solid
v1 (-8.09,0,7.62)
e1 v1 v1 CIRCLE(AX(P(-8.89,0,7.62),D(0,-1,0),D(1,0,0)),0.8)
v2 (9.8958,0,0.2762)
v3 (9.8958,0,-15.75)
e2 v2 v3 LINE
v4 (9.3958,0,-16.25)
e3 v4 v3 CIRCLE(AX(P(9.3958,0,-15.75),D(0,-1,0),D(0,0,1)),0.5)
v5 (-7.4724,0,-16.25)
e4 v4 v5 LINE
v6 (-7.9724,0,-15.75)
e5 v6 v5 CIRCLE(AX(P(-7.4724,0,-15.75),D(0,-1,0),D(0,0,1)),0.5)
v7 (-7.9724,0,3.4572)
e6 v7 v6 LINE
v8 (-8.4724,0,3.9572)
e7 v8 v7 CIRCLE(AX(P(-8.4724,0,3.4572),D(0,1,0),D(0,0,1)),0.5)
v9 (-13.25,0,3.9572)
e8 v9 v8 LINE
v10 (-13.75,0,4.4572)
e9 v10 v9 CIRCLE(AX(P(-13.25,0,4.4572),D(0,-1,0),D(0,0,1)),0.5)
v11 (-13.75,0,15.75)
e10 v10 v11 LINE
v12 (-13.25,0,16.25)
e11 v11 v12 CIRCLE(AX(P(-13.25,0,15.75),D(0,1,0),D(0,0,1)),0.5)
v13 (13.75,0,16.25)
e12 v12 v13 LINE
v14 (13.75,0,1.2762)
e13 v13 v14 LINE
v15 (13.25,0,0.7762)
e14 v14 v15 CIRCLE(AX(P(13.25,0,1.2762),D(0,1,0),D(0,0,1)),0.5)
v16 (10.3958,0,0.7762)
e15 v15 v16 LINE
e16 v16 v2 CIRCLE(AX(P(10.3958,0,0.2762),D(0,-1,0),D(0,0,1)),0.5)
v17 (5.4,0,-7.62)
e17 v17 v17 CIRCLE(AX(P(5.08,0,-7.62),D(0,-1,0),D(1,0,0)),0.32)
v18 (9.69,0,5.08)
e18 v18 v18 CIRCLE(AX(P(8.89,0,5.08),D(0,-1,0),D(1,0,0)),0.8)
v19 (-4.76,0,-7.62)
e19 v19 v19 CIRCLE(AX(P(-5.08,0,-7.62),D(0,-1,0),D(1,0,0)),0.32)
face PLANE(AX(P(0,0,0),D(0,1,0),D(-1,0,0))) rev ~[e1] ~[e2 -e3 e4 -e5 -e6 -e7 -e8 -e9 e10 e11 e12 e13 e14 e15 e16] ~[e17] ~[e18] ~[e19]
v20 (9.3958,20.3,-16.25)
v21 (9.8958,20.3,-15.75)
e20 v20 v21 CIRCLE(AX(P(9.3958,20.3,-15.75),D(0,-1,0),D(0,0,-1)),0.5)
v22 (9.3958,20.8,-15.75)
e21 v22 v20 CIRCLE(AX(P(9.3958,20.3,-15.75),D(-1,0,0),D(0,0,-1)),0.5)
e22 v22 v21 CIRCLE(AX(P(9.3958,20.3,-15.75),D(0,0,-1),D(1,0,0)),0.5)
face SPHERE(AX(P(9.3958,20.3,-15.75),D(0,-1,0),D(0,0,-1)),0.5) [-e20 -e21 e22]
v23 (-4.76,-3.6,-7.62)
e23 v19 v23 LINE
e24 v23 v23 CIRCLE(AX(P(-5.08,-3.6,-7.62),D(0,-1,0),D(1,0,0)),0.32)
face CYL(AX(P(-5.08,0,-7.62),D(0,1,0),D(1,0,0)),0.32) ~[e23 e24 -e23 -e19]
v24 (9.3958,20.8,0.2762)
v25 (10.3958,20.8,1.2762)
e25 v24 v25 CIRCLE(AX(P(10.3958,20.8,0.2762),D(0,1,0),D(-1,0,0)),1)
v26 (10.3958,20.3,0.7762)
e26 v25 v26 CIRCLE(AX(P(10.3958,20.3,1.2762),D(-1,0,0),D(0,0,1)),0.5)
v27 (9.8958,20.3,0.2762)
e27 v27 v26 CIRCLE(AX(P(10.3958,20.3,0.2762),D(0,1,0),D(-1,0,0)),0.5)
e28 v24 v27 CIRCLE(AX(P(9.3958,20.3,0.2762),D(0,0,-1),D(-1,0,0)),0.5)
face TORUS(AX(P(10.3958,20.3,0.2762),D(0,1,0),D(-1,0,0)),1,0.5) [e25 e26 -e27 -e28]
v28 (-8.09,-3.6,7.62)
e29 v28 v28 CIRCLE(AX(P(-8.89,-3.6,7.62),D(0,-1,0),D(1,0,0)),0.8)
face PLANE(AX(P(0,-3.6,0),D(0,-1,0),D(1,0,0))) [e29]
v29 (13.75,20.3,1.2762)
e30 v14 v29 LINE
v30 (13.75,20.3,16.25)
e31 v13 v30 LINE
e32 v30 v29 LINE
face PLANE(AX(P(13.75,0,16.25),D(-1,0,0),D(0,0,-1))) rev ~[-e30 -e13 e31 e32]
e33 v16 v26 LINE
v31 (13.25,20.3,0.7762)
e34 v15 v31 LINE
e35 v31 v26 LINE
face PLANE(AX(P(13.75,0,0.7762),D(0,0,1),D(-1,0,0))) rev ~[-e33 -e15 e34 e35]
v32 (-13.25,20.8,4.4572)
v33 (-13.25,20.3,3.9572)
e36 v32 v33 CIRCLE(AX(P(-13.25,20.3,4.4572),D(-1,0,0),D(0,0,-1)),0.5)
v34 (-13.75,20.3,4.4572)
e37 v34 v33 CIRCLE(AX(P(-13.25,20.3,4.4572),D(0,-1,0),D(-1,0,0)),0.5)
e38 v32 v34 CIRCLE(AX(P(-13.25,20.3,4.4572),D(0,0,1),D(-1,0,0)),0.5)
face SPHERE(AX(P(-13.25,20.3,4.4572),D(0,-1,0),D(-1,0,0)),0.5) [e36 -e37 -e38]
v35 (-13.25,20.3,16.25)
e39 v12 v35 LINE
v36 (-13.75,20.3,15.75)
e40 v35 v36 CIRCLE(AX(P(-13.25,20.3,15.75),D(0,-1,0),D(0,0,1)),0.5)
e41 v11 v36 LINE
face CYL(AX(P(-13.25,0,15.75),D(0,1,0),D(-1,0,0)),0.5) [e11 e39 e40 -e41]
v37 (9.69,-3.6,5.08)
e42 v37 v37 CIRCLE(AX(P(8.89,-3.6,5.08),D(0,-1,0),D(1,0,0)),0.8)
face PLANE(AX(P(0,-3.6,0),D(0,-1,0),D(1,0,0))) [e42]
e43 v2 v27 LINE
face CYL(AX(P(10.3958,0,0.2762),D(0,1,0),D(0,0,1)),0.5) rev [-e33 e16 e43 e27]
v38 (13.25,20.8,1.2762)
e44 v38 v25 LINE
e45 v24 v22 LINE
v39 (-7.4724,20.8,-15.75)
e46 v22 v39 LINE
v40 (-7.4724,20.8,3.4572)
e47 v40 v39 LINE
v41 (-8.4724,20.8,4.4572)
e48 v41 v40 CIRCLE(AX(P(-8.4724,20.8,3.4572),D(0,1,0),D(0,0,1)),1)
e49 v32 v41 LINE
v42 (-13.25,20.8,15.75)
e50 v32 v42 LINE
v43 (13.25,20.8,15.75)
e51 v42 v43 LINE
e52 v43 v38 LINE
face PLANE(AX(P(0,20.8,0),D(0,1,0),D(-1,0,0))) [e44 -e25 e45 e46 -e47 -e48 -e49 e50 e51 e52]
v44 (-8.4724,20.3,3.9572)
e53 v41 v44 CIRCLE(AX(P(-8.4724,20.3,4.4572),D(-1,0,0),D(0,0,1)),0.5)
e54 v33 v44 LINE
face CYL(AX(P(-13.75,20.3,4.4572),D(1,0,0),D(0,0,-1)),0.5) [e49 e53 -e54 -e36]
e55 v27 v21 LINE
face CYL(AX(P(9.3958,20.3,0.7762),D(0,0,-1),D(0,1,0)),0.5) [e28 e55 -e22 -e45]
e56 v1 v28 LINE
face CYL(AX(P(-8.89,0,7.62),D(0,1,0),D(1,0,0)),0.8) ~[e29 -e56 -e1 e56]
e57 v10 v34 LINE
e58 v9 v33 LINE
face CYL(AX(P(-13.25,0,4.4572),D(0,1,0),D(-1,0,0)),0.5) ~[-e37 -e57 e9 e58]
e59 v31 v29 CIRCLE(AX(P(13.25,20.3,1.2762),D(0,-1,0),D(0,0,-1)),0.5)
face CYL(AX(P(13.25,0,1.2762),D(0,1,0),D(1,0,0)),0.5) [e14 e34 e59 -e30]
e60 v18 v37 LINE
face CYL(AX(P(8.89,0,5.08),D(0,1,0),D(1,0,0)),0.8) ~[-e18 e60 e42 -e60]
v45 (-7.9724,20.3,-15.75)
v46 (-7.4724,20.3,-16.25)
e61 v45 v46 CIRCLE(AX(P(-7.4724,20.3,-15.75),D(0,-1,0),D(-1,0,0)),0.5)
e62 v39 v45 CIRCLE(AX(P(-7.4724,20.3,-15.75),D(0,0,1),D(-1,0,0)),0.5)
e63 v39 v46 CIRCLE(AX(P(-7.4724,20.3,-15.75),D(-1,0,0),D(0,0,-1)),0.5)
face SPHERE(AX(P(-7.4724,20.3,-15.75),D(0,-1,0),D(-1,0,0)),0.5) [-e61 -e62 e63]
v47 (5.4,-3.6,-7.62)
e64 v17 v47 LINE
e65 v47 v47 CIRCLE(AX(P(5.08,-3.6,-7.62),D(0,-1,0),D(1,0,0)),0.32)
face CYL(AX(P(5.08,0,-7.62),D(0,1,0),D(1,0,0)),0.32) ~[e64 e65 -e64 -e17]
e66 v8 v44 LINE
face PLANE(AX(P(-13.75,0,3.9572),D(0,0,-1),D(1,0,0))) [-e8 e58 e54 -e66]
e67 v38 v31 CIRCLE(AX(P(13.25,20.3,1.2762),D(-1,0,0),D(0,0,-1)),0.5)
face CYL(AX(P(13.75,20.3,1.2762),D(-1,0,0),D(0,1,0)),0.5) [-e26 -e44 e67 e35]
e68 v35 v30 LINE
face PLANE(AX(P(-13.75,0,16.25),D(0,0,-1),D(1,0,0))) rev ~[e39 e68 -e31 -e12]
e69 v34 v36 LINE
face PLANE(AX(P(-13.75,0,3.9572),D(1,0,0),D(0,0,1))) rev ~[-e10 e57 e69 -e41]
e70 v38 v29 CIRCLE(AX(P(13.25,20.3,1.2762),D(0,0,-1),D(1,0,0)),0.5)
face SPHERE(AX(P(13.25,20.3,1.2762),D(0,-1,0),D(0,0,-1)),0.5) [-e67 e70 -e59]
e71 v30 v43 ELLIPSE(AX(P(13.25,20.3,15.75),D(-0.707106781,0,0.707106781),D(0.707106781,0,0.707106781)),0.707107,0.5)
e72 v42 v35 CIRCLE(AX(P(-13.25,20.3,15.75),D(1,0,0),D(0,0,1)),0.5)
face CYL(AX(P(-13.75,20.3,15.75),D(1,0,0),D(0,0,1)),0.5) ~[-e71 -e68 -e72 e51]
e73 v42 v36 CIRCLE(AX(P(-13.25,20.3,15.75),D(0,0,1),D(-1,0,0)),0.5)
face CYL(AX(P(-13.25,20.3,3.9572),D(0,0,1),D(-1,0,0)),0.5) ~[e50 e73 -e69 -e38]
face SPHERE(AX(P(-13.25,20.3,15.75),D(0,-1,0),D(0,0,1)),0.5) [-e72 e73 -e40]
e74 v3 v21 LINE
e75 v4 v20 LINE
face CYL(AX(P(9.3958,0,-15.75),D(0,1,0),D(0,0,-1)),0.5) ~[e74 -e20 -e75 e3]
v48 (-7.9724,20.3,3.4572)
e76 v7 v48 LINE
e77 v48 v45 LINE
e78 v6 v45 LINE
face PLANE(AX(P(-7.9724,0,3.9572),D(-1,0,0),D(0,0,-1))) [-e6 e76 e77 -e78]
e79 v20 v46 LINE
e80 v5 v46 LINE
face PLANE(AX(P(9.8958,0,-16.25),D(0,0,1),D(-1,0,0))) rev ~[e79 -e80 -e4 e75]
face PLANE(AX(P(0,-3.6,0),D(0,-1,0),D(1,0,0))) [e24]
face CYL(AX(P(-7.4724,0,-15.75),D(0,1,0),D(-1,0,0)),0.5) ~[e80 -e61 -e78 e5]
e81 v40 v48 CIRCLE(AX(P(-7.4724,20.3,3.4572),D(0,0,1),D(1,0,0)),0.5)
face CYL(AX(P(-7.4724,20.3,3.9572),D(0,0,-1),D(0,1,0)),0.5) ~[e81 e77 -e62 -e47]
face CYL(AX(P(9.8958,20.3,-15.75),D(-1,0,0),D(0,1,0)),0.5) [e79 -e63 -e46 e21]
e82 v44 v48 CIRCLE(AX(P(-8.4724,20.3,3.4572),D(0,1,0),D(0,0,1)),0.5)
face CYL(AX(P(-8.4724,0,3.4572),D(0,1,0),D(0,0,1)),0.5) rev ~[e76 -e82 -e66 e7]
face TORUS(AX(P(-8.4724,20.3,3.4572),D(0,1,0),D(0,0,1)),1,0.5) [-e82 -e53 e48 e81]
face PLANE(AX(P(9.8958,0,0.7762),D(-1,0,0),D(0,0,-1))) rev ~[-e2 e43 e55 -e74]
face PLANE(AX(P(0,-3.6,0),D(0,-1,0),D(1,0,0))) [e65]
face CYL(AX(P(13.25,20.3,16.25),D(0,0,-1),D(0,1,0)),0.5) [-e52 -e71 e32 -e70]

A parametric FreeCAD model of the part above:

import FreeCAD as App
import Part
import Sketcher
from FreeCAD import Vector
Q = App.Units.Quantity


def edges_at(feature, points):
    """Names of the edges that pass closest to the given points."""
    edges = feature.Shape.Edges
    near = lambda p: min(range(len(edges)), key=lambda i: edges[i].distToShape(Part.Vertex(*p))[0])
    return sorted({f"Edge{near(p) + 1}" for p in points})


def add_polygon(sketch, points):
    """Adds a closed chain of lines whose ends are joined by coincident constraints."""
    first, n = sketch.GeometryCount, len(points)
    for a, b in zip(points, points[1:] + points[:1]):
        sketch.addGeometry(Part.LineSegment(App.Vector(*a, 0), App.Vector(*b, 0)), False)
    for i in range(n):
        sketch.addConstraint(Sketcher.Constraint("Coincident", first + i, 2, first + (i + 1) % n, 1))

doc = App.newDocument("Part")
body = doc.addObject("PartDesign::Body", "Body")

# Sketch on XZ plane
sketch1 = body.newObject("Sketcher::SketchObject", "Sketch")
sketch1.AttachmentSupport = (doc.getObject("XZ_Plane"), [""])
sketch1.MapMode = "FlatFace"
add_polygon(sketch1, [(-13.8, 4), (-13.8, 16.2), (13.8, 16.2), (13.8, 0.8), (9.9, 0.8), (9.9, -16.2), (-8, -16.2), (-8, 4)])  # lines 0-7
sketch1.addConstraint([
    Sketcher.Constraint("Vertical", 0),
    Sketcher.Constraint("Horizontal", 1),
    Sketcher.Constraint("Vertical", 2),
    Sketcher.Constraint("Horizontal", 3),
    Sketcher.Constraint("Vertical", 4),
    Sketcher.Constraint("Horizontal", 5),
    Sketcher.Constraint("Vertical", 6),
    Sketcher.Constraint("Horizontal", 7),
    Sketcher.Constraint("DistanceX", 1, 1, 1, 2, Q("27.5 mm")),
    Sketcher.Constraint("DistanceY", 4, 2, 1, 2, Q("32.5 mm")),
    Sketcher.Constraint("DistanceX", 0, 2, -1, 1, Q("13.75 mm")),
    Sketcher.Constraint("DistanceY", -1, 1, 0, 2, Q("16.25 mm")),
    Sketcher.Constraint("DistanceX", 3, 2, 3, 1, Q("3.8542 mm")),
    Sketcher.Constraint("DistanceX", 5, 2, 5, 1, Q("17.8682 mm")),
    Sketcher.Constraint("DistanceY", 0, 1, 0, 2, Q("12.2928 mm")),
    Sketcher.Constraint("DistanceY", 2, 2, 2, 1, Q("15.4738 mm")),
])
pad1 = body.newObject("PartDesign::Pad", "Pad")
pad1.Profile = sketch1
pad1.Length = 20.8
pad1.Reversed = True

# Sketch on XZ plane
sketch2 = body.newObject("Sketcher::SketchObject", "Sketch001")
sketch2.AttachmentSupport = (doc.getObject("XZ_Plane"), [""])
sketch2.MapMode = "FlatFace"
sketch2.addGeometry([
    Part.Circle(Vector(-8.89, 7.62, 0), Vector(0, 0, 1), 0.8),
    Part.Circle(Vector(8.89, 5.08, 0), Vector(0, 0, 1), 0.8),
    Part.Circle(Vector(-5.08, -7.62, 0), Vector(0, 0, 1), 0.32),
    Part.Circle(Vector(5.08, -7.62, 0), Vector(0, 0, 1), 0.32),
], False)
sketch2.addConstraint([
    Sketcher.Constraint("Equal", 0, 1),
    Sketcher.Constraint("Equal", 2, 3),
    Sketcher.Constraint("Symmetric", 2, 3, 3, 3, -2),
    Sketcher.Constraint("Diameter", 0, Q("1.6 mm")),
    Sketcher.Constraint("Diameter", 2, Q("0.64 mm")),
    Sketcher.Constraint("DistanceY", -1, 1, 0, 3, Q("7.62 mm")),
    Sketcher.Constraint("DistanceY", -1, 1, 1, 3, Q("5.08 mm")),
    Sketcher.Constraint("DistanceX", 2, 3, -1, 1, Q("5.08 mm")),
    Sketcher.Constraint("DistanceY", 2, 3, -1, 1, Q("7.62 mm")),
    Sketcher.Constraint("DistanceX", 0, 3, 1, 3, Q("17.78 mm")),
    Sketcher.Constraint("DistanceX", 0, 3, 2, 3, Q("3.81 mm")),
])
pad2 = body.newObject("PartDesign::Pad", "Pad001")
pad2.Profile = sketch2
pad2.Length = 3.6
doc.recompute()

fillet = body.newObject("PartDesign::Fillet", "Fillet")
fillet.Base = (pad2, edges_at(pad2, [
    (-7.972, 10.4, 3.957),
    (-7.972, 10.4, -16.25),
    (-13.75, 10.4, 3.957),
    (-13.75, 10.4, 16.25),
    (9.896, 10.4, -16.25),
    (13.75, 10.4, 0.776),
    (9.896, 10.4, 0.776),
    (0, 20.8, 16.25),
    (-13.75, 20.8, 10.104),
    (-10.861, 20.8, 3.957),
    (-7.972, 20.8, -6.146),
    (0.962, 20.8, -16.25),
    (9.896, 20.8, -7.737),
    (11.823, 20.8, 0.776),
    (13.75, 20.8, 8.513),
]))
fillet.Radius = 0.5

doc.recompute()
